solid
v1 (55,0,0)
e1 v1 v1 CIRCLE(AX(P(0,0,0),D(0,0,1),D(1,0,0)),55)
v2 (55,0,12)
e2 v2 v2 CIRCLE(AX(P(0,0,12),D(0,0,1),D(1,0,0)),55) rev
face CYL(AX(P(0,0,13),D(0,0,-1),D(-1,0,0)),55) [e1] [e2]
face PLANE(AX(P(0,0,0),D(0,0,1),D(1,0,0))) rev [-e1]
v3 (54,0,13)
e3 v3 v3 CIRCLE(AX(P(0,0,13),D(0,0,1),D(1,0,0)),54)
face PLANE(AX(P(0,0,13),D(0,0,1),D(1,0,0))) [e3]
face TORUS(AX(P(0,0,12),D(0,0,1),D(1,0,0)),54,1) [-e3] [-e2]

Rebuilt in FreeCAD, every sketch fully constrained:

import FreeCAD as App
import Part
import Sketcher


def edges_at(feature, points):
    """Names of the edges that pass closest to the given points."""
    edges = feature.Shape.Edges
    near = lambda p: min(range(len(edges)), key=lambda i: edges[i].distToShape(Part.Vertex(*p))[0])
    return sorted({f"Edge{near(p) + 1}" for p in points})

doc = App.newDocument("Part")
body = doc.addObject("PartDesign::Body", "Body")

# Sketch on XY plane
sketch1 = body.newObject("Sketcher::SketchObject", "Sketch")
sketch1.AttachmentSupport = (doc.getObject("XY_Plane"), [""])
sketch1.MapMode = "FlatFace"
sketch1.addGeometry(Part.Circle(App.Vector(0, 0, 0), App.Vector(0, 0, 1), 55), False)
sketch1.addConstraint([
    Sketcher.Constraint("Coincident", 0, 3, -1, 1),
    Sketcher.Constraint("Diameter", 0, 110.0),
])
pad1 = body.newObject("PartDesign::Pad", "Pad")
pad1.Profile = sketch1
pad1.Length = 13
doc.recompute()

fillet = body.newObject("PartDesign::Fillet", "Fillet")
fillet.Base = (pad1, edges_at(pad1, [(-55, 0, 13)]))
fillet.Radius = 1

doc.recompute()
